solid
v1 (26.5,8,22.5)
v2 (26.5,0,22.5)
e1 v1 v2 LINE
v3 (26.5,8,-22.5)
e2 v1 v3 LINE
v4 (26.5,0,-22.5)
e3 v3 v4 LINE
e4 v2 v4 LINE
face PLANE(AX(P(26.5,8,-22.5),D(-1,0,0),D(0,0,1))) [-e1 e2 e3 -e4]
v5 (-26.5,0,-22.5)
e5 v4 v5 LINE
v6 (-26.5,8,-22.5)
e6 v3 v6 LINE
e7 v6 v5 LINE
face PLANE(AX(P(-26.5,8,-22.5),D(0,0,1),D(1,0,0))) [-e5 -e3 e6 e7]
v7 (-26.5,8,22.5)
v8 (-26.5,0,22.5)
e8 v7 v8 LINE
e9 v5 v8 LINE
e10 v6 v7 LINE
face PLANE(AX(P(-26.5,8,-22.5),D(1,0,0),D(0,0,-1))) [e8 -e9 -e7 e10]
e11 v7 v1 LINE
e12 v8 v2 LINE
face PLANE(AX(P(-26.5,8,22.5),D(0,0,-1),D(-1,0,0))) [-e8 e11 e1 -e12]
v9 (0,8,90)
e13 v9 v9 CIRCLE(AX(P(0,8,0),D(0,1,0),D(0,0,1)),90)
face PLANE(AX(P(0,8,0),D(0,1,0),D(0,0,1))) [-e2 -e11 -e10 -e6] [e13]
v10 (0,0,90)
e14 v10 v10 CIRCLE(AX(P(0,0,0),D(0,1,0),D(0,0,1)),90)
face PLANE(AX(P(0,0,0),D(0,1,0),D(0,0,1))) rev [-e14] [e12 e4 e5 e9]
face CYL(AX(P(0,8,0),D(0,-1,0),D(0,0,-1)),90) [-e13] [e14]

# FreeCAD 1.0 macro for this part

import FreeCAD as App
import Part
import Sketcher
Q = App.Units.Quantity


def add_polygon(sketch, points):
    """Adds a closed chain of lines whose ends are joined by coincident constraints."""
    first, n = sketch.GeometryCount, len(points)
    for a, b in zip(points, points[1:] + points[:1]):
        sketch.addGeometry(Part.LineSegment(App.Vector(*a, 0), App.Vector(*b, 0)), False)
    for i in range(n):
        sketch.addConstraint(Sketcher.Constraint("Coincident", first + i, 2, first + (i + 1) % n, 1))

doc = App.newDocument("Part")
body = doc.addObject("PartDesign::Body", "Body")

# Sketch on XZ plane
sketch1 = body.newObject("Sketcher::SketchObject", "Sketch")
sketch1.AttachmentSupport = (doc.getObject("XZ_Plane"), [""])
sketch1.MapMode = "FlatFace"
sketch1.addGeometry(Part.Circle(App.Vector(0, 0, 0), App.Vector(0, 0, 1), 90), False)  # 0
add_polygon(sketch1, [(26, 22), (-26, 22), (-26, -22), (26, -22)])  # lines 1-4
sketch1.addConstraint(Sketcher.Constraint("Horizontal", 1))
sketch1.addConstraint(Sketcher.Constraint("Vertical", 2))
sketch1.addConstraint(Sketcher.Constraint("Horizontal", 3))
sketch1.addConstraint(Sketcher.Constraint("Vertical", 4))
sketch1.addConstraint(Sketcher.Constraint("Coincident", 0, 3, -1, 1))
sketch1.addConstraint(Sketcher.Constraint("Symmetric", 1, 2, 3, 2, -1, 1))
sketch1.addConstraint(Sketcher.Constraint("Diameter", 0, Q("180 mm")))
sketch1.addConstraint(Sketcher.Constraint("DistanceX", 1, 2, 1, 1, Q("53 mm")))
sketch1.addConstraint(Sketcher.Constraint("DistanceY", 2, 2, 2, 1, Q("45 mm")))
pad1 = body.newObject("PartDesign::Pad", "Pad")
pad1.Profile = sketch1
pad1.Length = 8
pad1.Reversed = True

doc.recompute()
